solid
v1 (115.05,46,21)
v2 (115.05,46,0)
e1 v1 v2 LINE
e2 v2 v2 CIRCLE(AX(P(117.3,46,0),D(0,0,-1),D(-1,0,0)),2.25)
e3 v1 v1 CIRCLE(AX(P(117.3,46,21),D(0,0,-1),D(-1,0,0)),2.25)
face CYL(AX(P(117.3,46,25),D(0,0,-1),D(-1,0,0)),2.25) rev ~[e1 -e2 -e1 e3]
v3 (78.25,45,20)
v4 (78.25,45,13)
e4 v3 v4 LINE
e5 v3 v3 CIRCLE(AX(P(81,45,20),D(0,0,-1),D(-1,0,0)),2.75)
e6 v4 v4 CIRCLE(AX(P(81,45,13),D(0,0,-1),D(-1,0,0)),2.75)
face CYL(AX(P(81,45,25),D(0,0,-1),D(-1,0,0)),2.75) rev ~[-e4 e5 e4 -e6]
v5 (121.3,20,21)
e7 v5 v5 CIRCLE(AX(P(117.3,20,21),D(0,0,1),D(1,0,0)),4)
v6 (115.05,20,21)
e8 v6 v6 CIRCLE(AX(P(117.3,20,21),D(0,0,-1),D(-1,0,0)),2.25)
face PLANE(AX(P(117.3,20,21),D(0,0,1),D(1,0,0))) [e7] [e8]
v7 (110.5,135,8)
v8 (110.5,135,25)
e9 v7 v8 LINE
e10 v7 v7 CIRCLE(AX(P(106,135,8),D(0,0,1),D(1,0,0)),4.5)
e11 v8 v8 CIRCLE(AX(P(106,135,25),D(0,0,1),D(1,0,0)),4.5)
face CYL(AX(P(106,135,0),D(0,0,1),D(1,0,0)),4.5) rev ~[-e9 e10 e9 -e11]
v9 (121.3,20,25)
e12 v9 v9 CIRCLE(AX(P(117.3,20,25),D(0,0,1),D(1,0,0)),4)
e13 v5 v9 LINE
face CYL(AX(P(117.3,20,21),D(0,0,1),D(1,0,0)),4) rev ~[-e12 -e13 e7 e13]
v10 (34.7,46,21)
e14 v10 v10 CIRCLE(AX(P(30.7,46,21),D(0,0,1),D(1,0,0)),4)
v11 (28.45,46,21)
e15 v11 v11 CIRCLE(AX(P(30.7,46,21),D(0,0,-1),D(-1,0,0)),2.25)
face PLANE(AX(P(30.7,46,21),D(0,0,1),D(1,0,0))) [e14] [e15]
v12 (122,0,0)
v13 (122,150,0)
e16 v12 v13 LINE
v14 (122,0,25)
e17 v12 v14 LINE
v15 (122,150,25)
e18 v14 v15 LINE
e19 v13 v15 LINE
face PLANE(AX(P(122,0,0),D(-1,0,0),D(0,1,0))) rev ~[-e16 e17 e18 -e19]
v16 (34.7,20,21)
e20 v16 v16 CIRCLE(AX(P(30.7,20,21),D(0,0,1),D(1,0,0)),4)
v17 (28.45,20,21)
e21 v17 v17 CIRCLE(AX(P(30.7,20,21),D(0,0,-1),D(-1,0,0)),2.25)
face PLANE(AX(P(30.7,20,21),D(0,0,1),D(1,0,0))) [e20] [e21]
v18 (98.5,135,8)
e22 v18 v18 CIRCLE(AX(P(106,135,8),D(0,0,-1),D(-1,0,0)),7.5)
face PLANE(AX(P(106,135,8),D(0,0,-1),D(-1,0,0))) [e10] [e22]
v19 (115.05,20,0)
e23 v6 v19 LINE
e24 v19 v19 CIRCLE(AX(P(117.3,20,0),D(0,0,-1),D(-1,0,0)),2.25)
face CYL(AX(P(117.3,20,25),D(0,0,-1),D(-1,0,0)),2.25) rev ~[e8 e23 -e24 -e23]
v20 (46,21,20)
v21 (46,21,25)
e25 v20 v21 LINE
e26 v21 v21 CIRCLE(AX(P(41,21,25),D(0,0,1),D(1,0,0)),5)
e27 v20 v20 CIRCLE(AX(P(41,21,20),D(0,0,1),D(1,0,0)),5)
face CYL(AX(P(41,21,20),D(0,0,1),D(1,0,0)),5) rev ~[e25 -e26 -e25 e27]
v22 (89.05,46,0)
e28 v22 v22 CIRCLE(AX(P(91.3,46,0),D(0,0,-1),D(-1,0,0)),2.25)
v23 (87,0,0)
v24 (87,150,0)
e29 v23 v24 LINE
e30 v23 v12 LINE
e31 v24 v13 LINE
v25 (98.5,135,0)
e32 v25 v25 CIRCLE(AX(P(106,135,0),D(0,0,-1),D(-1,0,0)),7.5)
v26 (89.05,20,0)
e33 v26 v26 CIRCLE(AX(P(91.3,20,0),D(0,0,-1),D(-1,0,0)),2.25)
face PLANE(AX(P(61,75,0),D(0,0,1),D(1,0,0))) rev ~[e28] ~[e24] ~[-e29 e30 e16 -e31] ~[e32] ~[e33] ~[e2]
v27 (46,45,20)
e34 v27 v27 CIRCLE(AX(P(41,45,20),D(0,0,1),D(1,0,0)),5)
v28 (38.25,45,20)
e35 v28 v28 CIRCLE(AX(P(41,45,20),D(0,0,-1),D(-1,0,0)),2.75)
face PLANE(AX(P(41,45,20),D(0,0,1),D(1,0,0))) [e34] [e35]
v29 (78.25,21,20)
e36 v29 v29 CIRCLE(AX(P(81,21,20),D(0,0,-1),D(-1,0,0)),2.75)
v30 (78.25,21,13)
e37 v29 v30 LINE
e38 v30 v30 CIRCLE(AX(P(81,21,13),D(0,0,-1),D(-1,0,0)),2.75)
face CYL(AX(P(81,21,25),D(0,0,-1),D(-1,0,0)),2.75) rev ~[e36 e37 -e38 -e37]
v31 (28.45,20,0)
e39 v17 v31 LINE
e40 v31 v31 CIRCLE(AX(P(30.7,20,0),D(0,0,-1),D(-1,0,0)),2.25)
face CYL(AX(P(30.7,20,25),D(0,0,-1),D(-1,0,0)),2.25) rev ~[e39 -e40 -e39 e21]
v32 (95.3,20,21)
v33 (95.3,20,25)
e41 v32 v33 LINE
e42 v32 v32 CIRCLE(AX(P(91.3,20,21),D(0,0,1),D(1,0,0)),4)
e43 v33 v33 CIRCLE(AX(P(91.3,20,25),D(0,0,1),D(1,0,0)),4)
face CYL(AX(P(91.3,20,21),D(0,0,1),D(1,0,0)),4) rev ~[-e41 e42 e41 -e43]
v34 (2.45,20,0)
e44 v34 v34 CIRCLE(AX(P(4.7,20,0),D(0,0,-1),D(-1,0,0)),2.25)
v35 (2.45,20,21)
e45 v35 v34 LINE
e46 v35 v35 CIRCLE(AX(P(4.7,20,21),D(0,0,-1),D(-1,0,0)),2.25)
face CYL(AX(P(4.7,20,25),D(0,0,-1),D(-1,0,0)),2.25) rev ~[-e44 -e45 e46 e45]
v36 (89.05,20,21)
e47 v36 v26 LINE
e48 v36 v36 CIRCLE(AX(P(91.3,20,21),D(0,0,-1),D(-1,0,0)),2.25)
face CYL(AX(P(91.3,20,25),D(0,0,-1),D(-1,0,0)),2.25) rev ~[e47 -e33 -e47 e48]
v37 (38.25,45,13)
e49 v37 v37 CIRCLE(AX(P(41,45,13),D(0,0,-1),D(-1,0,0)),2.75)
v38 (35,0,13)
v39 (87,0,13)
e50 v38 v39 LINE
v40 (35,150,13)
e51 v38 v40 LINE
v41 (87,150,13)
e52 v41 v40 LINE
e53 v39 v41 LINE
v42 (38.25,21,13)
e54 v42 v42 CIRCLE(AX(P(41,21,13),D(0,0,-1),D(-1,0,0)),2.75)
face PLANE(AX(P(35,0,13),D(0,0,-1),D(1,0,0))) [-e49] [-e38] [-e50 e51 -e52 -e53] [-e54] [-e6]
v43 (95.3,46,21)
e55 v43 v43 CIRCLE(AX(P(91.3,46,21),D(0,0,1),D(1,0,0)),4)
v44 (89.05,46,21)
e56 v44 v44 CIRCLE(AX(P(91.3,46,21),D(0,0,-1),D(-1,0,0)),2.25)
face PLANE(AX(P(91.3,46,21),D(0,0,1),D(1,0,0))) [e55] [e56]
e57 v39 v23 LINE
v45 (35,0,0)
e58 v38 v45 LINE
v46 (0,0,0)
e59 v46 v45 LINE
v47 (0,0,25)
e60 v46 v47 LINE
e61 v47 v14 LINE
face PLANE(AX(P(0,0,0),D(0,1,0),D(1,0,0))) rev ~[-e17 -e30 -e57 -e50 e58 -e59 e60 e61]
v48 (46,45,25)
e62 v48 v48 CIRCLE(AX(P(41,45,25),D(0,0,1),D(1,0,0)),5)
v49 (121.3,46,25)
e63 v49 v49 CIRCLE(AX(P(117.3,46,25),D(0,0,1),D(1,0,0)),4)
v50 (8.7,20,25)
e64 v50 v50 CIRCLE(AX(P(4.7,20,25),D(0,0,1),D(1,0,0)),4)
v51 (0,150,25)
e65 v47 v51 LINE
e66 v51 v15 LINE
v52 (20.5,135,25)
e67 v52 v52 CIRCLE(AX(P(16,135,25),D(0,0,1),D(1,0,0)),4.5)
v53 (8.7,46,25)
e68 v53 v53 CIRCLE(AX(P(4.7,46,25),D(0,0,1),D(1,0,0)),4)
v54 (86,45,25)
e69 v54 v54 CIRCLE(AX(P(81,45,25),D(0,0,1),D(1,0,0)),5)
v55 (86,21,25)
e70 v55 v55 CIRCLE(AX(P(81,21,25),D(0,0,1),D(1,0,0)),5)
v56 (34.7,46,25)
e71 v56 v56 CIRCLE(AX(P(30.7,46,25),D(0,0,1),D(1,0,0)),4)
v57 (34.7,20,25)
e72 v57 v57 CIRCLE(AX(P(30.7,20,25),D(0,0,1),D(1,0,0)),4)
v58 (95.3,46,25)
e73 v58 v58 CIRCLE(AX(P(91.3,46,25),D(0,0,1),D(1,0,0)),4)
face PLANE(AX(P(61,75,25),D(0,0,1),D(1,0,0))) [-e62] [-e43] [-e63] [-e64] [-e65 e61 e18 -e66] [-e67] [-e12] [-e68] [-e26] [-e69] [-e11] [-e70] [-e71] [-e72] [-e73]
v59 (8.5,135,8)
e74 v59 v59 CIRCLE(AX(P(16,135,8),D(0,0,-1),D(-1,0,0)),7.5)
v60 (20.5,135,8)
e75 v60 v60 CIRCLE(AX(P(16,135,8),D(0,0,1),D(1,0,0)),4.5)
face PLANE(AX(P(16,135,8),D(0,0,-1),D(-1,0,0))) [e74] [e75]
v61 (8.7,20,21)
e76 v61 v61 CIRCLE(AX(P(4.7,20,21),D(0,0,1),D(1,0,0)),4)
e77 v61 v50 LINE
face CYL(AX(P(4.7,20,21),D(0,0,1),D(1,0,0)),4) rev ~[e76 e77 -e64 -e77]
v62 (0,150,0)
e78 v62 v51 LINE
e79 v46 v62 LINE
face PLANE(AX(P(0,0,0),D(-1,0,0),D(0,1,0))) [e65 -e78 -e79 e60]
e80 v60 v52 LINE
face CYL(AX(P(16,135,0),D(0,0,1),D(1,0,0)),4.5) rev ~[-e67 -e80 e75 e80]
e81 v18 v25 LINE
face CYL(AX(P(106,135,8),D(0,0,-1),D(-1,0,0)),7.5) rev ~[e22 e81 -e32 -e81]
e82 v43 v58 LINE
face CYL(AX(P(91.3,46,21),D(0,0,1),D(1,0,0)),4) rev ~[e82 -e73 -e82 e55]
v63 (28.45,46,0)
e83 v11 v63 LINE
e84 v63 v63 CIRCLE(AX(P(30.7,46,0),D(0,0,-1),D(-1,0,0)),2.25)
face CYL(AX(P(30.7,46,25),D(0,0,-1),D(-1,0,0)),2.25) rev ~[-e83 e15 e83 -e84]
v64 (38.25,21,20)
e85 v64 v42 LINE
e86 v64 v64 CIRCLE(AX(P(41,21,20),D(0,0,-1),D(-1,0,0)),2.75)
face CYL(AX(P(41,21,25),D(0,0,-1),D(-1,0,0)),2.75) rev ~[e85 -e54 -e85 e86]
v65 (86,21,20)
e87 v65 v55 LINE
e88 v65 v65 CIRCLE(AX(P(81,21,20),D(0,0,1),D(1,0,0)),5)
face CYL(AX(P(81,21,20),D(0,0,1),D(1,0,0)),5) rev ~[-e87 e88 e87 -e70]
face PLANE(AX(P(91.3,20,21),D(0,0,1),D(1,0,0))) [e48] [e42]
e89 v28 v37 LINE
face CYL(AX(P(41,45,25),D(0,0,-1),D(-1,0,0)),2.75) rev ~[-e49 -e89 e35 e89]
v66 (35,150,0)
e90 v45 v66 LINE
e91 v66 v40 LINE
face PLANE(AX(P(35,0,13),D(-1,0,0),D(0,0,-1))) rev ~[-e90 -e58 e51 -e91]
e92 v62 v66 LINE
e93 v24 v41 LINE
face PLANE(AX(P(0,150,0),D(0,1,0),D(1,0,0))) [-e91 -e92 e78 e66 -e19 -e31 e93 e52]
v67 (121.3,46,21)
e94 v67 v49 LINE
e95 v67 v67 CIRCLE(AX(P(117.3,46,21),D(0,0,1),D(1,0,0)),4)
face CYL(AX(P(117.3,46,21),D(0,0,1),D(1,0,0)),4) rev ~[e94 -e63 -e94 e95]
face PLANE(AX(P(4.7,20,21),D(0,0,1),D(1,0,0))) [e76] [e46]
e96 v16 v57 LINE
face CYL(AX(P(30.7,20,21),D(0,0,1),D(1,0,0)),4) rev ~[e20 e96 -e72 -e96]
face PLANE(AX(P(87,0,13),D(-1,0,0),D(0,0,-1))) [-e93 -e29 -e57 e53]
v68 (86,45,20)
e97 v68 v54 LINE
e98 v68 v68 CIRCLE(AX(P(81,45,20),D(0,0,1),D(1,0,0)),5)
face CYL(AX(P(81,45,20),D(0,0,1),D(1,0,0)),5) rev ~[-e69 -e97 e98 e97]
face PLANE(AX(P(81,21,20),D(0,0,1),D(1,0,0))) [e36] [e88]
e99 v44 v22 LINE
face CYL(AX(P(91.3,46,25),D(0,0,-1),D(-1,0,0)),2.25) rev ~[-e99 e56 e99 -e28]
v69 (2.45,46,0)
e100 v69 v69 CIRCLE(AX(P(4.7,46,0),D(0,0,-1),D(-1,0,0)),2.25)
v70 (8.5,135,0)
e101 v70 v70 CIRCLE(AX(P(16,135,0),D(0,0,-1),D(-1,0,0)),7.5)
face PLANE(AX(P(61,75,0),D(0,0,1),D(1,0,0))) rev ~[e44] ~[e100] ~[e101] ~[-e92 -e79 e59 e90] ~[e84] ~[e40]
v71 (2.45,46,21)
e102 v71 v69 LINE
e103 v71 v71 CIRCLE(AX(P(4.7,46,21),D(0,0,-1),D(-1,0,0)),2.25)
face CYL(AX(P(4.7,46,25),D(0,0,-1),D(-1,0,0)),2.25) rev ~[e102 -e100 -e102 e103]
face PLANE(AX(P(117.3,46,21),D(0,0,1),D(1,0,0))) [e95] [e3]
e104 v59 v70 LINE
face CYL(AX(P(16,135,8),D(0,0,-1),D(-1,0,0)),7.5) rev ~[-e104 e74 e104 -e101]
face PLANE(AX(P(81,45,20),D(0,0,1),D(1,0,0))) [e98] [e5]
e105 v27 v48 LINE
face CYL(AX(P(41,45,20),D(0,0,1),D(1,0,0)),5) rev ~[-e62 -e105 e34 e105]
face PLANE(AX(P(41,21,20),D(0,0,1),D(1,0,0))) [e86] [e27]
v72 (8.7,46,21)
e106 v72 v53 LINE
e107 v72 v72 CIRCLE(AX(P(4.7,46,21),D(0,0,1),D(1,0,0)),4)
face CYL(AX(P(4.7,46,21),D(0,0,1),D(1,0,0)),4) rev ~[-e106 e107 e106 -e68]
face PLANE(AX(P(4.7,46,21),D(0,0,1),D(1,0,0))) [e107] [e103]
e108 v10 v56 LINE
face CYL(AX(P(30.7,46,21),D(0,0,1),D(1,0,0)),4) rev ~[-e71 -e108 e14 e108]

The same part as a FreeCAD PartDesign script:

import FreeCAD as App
import Part
import Sketcher

V = App.Vector
Q = App.Units.Quantity

doc = App.newDocument("Part")
body = doc.addObject("PartDesign::Body", "Body")

# Sketch on XY plane
sketch1 = doc.addObject("Sketcher::SketchObject", "Sketch")
body.addObject(sketch1)
sketch1.AttachmentSupport = (doc.XY_Plane, [""])
sketch1.MapMode = "FlatFace"
sketch1.addGeometry([
    Part.LineSegment(V(0, 150, 0), V(0, 0, 0)),
    Part.LineSegment(V(0, 0, 0), V(122, 0, 0)),
    Part.LineSegment(V(122, 0, 0), V(122, 150, 0)),
    Part.LineSegment(V(122, 150, 0), V(0, 150, 0)),
], False)
sketch1.addConstraint([
    Sketcher.Constraint("Coincident", 0, 2, 1, 1),
    Sketcher.Constraint("Coincident", 1, 2, 2, 1),
    Sketcher.Constraint("Coincident", 2, 2, 3, 1),
    Sketcher.Constraint("Coincident", 3, 2, 0, 1),
    Sketcher.Constraint("Vertical", 0),
    Sketcher.Constraint("Horizontal", 1),
    Sketcher.Constraint("Vertical", 2),
    Sketcher.Constraint("Horizontal", 3),
    Sketcher.Constraint("Coincident", 0, 2, -1, 1),
    Sketcher.Constraint("DistanceX", 1, 1, 1, 2, Q("122 mm")),
    Sketcher.Constraint("DistanceY", 0, 2, 0, 1, Q("150 mm")),
])
pad1 = doc.addObject("PartDesign::Pad", "Pad")
body.addObject(pad1)
pad1.Profile = sketch1
pad1.Length = 25

# Sketch on XY plane
sketch2 = doc.addObject("Sketcher::SketchObject", "Sketch001")
body.addObject(sketch2)
sketch2.AttachmentSupport = (doc.XY_Plane, [""])
sketch2.MapMode = "FlatFace"
sketch2.AttachmentOffset = App.Placement(V(0, 0, 25), App.Rotation())
sketch2.addGeometry([
    Part.Circle(V(4.7, 46, 0), V(0, 0, 1), 2.2),  # 0
    Part.Circle(V(30.7, 46, 0), V(0, 0, 1), 2.2),  # 1
    Part.Circle(V(4.7, 20, 0), V(0, 0, 1), 2.2),  # 2
    Part.Circle(V(30.7, 20, 0), V(0, 0, 1), 2.2),  # 3
    Part.Circle(V(91.3, 46, 0), V(0, 0, 1), 2.2),  # 4
    Part.Circle(V(117.3, 46, 0), V(0, 0, 1), 2.2),  # 5
    Part.Circle(V(117.3, 20, 0), V(0, 0, 1), 2.2),  # 6
    Part.Circle(V(91.3, 20, 0), V(0, 0, 1), 2.2),  # 7
], False)
sketch2.addConstraint([
    Sketcher.Constraint("Equal", 0, 1),
    Sketcher.Constraint("Equal", 1, 2),
    Sketcher.Constraint("Equal", 2, 3),
    Sketcher.Constraint("Equal", 3, 4),
    Sketcher.Constraint("Equal", 4, 5),
    Sketcher.Constraint("Equal", 5, 6),
    Sketcher.Constraint("Equal", 6, 7),
    Sketcher.Constraint("Horizontal", 0, 3, 1, 3),
    Sketcher.Constraint("Horizontal", 2, 3, 3, 3),
    Sketcher.Constraint("Horizontal", 1, 3, 4, 3),
    Sketcher.Constraint("Horizontal", 4, 3, 5, 3),
    Sketcher.Constraint("Horizontal", 3, 3, 6, 3),
    Sketcher.Constraint("Horizontal", 6, 3, 7, 3),
    Sketcher.Constraint("Vertical", 0, 3, 2, 3),
    Sketcher.Constraint("Vertical", 1, 3, 3, 3),
    Sketcher.Constraint("Vertical", 5, 3, 6, 3),
    Sketcher.Constraint("Vertical", 4, 3, 7, 3),
    Sketcher.Constraint("Diameter", 0, Q("4.5 mm")),
    Sketcher.Constraint("DistanceY", -1, 1, 0, 3, Q("46 mm")),
    Sketcher.Constraint("DistanceY", -1, 1, 2, 3, Q("20 mm")),
    Sketcher.Constraint("DistanceX", 0, 3, 1, 3, Q("26 mm")),
    Sketcher.Constraint("DistanceX", 4, 3, 5, 3, Q("26 mm")),
    Sketcher.Constraint("DistanceX", -1, 1, 0, 3, Q("4.7 mm")),
    Sketcher.Constraint("DistanceX", -1, 1, 4, 3, Q("91.3 mm")),
])
doc.recompute()
hole = doc.addObject("PartDesign::Hole", "Hole")
body.addObject(hole)
hole.Profile = sketch2
hole.ThreadType = "None"
hole.Diameter = 4.5
hole.DepthType = "ThroughAll"
hole.HoleCutType = "Counterbore"
hole.HoleCutDiameter = 8
hole.HoleCutDepth = 4

# Sketch on XZ plane
sketch3 = doc.addObject("Sketcher::SketchObject", "Sketch002")
body.addObject(sketch3)
sketch3.AttachmentSupport = (doc.XZ_Plane, [""])
sketch3.MapMode = "FlatFace"
sketch3.addGeometry([
    Part.LineSegment(V(35, 0, 0), V(35, 13, 0)),
    Part.LineSegment(V(35, 13, 0), V(87, 13, 0)),
    Part.LineSegment(V(87, 13, 0), V(87, 0, 0)),
    Part.LineSegment(V(87, 0, 0), V(35, 0, 0)),
], False)
sketch3.addConstraint([
    Sketcher.Constraint("Coincident", 0, 2, 1, 1),
    Sketcher.Constraint("Coincident", 1, 2, 2, 1),
    Sketcher.Constraint("Coincident", 2, 2, 3, 1),
    Sketcher.Constraint("Coincident", 3, 2, 0, 1),
    Sketcher.Constraint("Vertical", 0),
    Sketcher.Constraint("Horizontal", 1),
    Sketcher.Constraint("Vertical", 2),
    Sketcher.Constraint("Horizontal", 3),
    Sketcher.Constraint("PointOnObject", 2, 2, -1),
    Sketcher.Constraint("DistanceX", 1, 1, 1, 2, Q("52 mm")),
    Sketcher.Constraint("DistanceY", 0, 1, 0, 2, Q("13 mm")),
    Sketcher.Constraint("DistanceX", -1, 1, 0, 2, Q("35 mm")),
])
pocket1 = doc.addObject("PartDesign::Pocket", "Pocket")
body.addObject(pocket1)
pocket1.Profile = sketch3
pocket1.Type = "ThroughAll"

# Sketch on XY plane
sketch4 = doc.addObject("Sketcher::SketchObject", "Sketch003")
body.addObject(sketch4)
sketch4.AttachmentSupport = (doc.XY_Plane, [""])
sketch4.MapMode = "FlatFace"
sketch4.AttachmentOffset = App.Placement(V(0, 0, 25), App.Rotation())
sketch4.addGeometry([
    Part.Circle(V(41, 45, 0), V(0, 0, 1), 2.8),
    Part.Circle(V(81, 45, 0), V(0, 0, 1), 2.8),
    Part.Circle(V(81, 21, 0), V(0, 0, 1), 2.8),
    Part.Circle(V(41, 21, 0), V(0, 0, 1), 2.8),
], False)
sketch4.addConstraint([
    Sketcher.Constraint("Equal", 0, 1),
    Sketcher.Constraint("Equal", 1, 2),
    Sketcher.Constraint("Equal", 2, 3),
    Sketcher.Constraint("Horizontal", 0, 3, 1, 3),
    Sketcher.Constraint("Horizontal", 2, 3, 3, 3),
    Sketcher.Constraint("Vertical", 1, 3, 2, 3),
    Sketcher.Constraint("Vertical", 0, 3, 3, 3),
    Sketcher.Constraint("Diameter", 0, Q("5.5 mm")),
    Sketcher.Constraint("DistanceX", -1, 1, 0, 3, Q("41 mm")),
    Sketcher.Constraint("DistanceY", -1, 1, 0, 3, Q("45 mm")),
    Sketcher.Constraint("DistanceX", -1, 1, 1, 3, Q("81 mm")),
    Sketcher.Constraint("DistanceY", -1, 1, 2, 3, Q("21 mm")),
])
doc.recompute()
hole2 = doc.addObject("PartDesign::Hole", "Hole001")
body.addObject(hole2)
hole2.Profile = sketch4
hole2.ThreadType = "None"
hole2.Diameter = 5.5
hole2.DepthType = "ThroughAll"
hole2.HoleCutType = "Counterbore"
hole2.HoleCutDiameter = 10
hole2.HoleCutDepth = 5

# Sketch on XY plane
sketch5 = doc.addObject("Sketcher::SketchObject", "Sketch004")
body.addObject(sketch5)
sketch5.AttachmentSupport = (doc.XY_Plane, [""])
sketch5.MapMode = "FlatFace"
sketch5.addGeometry([
    Part.Circle(V(106, 135, 0), V(0, 0, 1), 4.5),
    Part.Circle(V(16, 135, 0), V(0, 0, 1), 4.5),
], False)
sketch5.addConstraint([
    Sketcher.Constraint("Equal", 0, 1),
    Sketcher.Constraint("Horizontal", 0, 3, 1, 3),
    Sketcher.Constraint("Diameter", 0, Q("9 mm")),
    Sketcher.Constraint("DistanceX", -1, 1, 0, 3, Q("106 mm")),
    Sketcher.Constraint("DistanceY", -1, 1, 0, 3, Q("135 mm")),
    Sketcher.Constraint("DistanceX", -1, 1, 1, 3, Q("16 mm")),
])
doc.recompute()
hole3 = doc.addObject("PartDesign::Hole", "Hole002")
body.addObject(hole3)
hole3.Profile = sketch5
hole3.ThreadType = "None"
hole3.Diameter = 9
hole3.DepthType = "ThroughAll"
hole3.HoleCutType = "Counterbore"
hole3.HoleCutDiameter = 15
hole3.HoleCutDepth = 8
hole3.Reversed = True

doc.recompute()
